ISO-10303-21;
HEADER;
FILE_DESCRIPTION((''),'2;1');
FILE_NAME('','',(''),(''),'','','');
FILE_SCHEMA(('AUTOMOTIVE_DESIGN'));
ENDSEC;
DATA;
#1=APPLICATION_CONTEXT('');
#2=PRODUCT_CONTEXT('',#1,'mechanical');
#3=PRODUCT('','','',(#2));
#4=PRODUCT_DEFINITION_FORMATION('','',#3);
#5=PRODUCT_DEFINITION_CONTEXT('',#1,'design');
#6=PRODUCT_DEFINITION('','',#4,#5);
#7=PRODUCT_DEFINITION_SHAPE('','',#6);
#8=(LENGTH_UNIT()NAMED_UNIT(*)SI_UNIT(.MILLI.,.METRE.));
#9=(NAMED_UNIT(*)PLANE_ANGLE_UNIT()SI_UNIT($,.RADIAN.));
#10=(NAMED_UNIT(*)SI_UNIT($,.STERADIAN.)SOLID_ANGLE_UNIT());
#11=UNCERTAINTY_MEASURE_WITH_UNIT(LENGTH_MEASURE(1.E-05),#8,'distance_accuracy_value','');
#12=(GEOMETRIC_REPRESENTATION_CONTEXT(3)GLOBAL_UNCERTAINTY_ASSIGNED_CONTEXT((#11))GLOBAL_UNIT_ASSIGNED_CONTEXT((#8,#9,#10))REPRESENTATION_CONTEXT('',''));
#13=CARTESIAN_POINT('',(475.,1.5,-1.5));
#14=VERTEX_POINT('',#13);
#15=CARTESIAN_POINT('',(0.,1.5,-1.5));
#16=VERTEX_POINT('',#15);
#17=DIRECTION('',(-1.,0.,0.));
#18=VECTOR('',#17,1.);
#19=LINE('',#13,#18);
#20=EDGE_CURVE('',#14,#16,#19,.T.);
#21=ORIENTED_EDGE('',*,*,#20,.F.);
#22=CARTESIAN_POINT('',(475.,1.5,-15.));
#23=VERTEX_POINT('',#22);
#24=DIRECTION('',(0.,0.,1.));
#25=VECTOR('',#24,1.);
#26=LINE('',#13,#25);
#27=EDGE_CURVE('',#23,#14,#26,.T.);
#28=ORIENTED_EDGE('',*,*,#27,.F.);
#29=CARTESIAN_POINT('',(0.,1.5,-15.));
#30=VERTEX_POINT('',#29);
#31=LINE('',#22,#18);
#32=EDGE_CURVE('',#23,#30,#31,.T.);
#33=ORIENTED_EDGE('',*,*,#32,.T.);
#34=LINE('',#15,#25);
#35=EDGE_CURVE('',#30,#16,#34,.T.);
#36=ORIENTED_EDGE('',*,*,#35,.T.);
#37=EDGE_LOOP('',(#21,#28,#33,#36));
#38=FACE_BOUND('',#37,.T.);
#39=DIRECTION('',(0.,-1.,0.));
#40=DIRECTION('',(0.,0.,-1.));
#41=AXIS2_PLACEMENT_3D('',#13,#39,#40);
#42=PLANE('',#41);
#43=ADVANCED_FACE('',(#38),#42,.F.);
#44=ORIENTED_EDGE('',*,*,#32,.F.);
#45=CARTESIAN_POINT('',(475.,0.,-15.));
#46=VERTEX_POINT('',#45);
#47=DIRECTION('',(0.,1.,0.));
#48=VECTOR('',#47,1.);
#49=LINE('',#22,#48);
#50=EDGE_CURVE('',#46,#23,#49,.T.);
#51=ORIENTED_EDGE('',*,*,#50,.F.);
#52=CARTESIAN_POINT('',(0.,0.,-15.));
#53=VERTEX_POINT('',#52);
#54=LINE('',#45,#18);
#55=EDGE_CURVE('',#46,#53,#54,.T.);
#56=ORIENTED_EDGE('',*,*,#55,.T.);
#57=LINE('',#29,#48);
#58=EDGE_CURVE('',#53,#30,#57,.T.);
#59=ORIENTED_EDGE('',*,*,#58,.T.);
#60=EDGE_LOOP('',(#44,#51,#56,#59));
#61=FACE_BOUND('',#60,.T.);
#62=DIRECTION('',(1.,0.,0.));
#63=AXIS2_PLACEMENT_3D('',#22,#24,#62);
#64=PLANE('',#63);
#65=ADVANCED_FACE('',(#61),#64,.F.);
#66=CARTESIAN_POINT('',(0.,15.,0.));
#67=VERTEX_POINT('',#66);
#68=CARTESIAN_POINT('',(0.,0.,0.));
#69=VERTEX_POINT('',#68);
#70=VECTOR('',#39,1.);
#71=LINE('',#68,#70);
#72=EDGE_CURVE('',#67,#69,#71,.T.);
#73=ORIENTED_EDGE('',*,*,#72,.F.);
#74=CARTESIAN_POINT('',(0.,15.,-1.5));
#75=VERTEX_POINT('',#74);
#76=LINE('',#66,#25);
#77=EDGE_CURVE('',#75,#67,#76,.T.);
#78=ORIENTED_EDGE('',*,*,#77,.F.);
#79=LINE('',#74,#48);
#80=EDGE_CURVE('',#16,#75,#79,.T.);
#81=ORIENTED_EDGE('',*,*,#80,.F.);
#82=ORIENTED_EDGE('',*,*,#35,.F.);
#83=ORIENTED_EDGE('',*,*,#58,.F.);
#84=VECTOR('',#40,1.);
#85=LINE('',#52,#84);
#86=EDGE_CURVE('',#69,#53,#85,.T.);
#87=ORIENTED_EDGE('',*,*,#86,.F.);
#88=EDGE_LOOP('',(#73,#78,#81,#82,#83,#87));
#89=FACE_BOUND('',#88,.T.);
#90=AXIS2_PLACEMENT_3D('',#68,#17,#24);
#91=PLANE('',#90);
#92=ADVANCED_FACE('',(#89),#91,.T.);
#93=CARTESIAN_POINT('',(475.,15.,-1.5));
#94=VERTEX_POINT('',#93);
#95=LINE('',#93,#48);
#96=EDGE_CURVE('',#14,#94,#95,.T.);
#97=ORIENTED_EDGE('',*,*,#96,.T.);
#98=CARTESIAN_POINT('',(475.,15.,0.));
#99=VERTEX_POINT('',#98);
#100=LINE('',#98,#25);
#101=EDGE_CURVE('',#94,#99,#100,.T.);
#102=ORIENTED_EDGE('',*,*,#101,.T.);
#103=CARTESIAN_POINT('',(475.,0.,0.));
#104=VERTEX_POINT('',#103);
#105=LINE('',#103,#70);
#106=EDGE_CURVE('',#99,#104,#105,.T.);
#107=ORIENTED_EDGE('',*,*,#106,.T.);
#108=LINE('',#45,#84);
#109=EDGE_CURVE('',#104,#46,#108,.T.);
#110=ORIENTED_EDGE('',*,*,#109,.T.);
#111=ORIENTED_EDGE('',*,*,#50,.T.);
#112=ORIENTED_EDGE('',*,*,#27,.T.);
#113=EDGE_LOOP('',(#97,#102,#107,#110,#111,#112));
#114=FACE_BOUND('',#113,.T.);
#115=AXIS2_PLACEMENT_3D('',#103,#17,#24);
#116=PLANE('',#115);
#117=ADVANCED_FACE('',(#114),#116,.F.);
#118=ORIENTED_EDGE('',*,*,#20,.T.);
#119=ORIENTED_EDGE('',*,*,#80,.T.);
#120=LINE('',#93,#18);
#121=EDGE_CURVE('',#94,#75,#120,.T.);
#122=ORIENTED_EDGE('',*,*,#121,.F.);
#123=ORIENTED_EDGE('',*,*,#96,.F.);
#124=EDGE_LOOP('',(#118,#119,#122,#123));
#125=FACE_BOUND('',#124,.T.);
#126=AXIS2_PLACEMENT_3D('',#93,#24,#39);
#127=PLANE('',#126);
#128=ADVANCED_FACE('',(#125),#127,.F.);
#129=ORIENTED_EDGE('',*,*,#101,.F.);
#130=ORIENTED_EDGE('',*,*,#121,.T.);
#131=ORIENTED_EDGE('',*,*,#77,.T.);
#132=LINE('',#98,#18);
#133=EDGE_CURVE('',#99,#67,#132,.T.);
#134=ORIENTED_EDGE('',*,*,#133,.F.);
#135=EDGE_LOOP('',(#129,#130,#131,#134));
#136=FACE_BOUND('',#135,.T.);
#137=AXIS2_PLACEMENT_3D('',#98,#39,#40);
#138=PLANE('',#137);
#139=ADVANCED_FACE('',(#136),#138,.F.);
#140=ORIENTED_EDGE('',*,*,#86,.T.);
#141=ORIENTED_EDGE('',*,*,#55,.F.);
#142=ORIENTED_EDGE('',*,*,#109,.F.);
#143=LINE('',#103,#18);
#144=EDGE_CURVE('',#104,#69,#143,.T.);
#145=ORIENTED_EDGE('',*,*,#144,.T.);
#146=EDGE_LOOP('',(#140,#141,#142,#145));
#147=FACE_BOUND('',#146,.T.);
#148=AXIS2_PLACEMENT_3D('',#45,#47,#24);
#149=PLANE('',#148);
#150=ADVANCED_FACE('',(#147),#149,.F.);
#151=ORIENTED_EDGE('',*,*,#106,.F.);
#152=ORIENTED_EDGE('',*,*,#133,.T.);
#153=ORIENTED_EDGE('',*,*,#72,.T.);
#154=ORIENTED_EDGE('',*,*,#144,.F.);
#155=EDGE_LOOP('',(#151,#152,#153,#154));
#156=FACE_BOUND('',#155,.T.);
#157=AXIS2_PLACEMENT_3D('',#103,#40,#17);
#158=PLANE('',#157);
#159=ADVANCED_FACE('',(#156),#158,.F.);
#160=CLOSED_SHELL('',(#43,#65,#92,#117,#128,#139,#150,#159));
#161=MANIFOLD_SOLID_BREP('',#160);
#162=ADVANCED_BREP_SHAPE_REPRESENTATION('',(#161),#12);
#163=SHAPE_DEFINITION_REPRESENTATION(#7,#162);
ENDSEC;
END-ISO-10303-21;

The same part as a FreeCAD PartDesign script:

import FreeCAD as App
import Part
import Sketcher
from FreeCAD import Vector
Q = App.Units.Quantity


def add_polygon(sketch, points):
    """Adds a closed chain of lines whose ends are joined by coincident constraints."""
    first, n = sketch.GeometryCount, len(points)
    for a, b in zip(points, points[1:] + points[:1]):
        sketch.addGeometry(Part.LineSegment(App.Vector(*a, 0), App.Vector(*b, 0)), False)
    for i in range(n):
        sketch.addConstraint(Sketcher.Constraint("Coincident", first + i, 2, first + (i + 1) % n, 1))

doc = App.newDocument("Part")
body = doc.addObject("PartDesign::Body", "Body")

# Sketch on YZ plane
sketch1 = body.newObject("Sketcher::SketchObject", "Sketch")
sketch1.AttachmentSupport = (doc.getObject("YZ_Plane"), [""])
sketch1.MapMode = "FlatFace"
add_polygon(sketch1, [(15, 0), (0, 0), (0, -15), (1.5, -15), (1.5, -1.5), (15, -1.5)])  # lines 0-5
sketch1.addConstraint([
    Sketcher.Constraint("Horizontal", 0),
    Sketcher.Constraint("Vertical", 1),
    Sketcher.Constraint("Horizontal", 2),
    Sketcher.Constraint("Vertical", 3),
    Sketcher.Constraint("Horizontal", 4),
    Sketcher.Constraint("Vertical", 5),
    Sketcher.Constraint("Coincident", 0, 2, -1, 1),
    Sketcher.Constraint("Equal", 0, 1),
    Sketcher.Constraint("Equal", 4, 3),
    Sketcher.Constraint("DistanceX", 0, 2, 0, 1, Q("15 mm")),
    Sketcher.Constraint("DistanceX", 2, 1, 2, 2, Q("1.5 mm")),
])
pad1 = body.newObject("PartDesign::Pad", "Pad")
pad1.Profile = sketch1
pad1.Length = 475

doc.recompute()
